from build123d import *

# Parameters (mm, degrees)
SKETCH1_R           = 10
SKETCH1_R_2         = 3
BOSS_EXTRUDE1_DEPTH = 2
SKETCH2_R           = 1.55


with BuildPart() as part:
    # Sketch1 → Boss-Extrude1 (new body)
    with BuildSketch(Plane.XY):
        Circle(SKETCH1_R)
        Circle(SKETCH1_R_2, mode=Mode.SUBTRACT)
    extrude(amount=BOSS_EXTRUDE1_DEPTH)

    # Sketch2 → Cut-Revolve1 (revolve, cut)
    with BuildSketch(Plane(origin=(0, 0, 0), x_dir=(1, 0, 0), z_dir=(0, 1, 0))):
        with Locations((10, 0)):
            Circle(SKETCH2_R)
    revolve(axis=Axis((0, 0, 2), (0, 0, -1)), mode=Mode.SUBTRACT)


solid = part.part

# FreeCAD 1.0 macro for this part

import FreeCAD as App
import Part
import Sketcher

V = App.Vector
Q = App.Units.Quantity

doc = App.newDocument("Part")
body = doc.addObject("PartDesign::Body", "Body")

# Sketch on XY plane
sketch1 = doc.addObject("Sketcher::SketchObject", "Sketch")
body.addObject(sketch1)
sketch1.AttachmentSupport = (doc.XY_Plane, [""])
sketch1.MapMode = "FlatFace"
sketch1.addGeometry([
    Part.Circle(V(0, 0, 0), V(0, 0, 1), 10),
    Part.Circle(V(0, 0, 0), V(0, 0, 1), 3),
], False)
sketch1.addConstraint([
    Sketcher.Constraint("Coincident", 0, 3, -1, 1),
    Sketcher.Constraint("Coincident", 1, 3, -1, 1),
    Sketcher.Constraint("Diameter", 0, Q("20 mm")),
    Sketcher.Constraint("Diameter", 1, Q("6 mm")),
])
pad1 = doc.addObject("PartDesign::Pad", "Pad")
body.addObject(pad1)
pad1.Profile = sketch1
pad1.Length = 2

# Sketch on XZ plane
sketch2 = doc.addObject("Sketcher::SketchObject", "Sketch001")
body.addObject(sketch2)
sketch2.AttachmentSupport = (doc.XZ_Plane, [""])
sketch2.MapMode = "FlatFace"
sketch2.addGeometry(Part.Circle(V(10, 0, 0), V(0, 0, 1), 1.6), False)
sketch2.addConstraint([
    Sketcher.Constraint("PointOnObject", 0, 3, -1),
    Sketcher.Constraint("Diameter", 0, Q("3.1 mm")),
    Sketcher.Constraint("DistanceX", -1, 1, 0, 3, Q("10 mm")),
])
groove = doc.addObject("PartDesign::Groove", "Groove")
body.addObject(groove)
groove.Profile = sketch2
groove.ReferenceAxis = (sketch2, ["V_Axis"])
groove.Angle = 360

doc.recompute()
